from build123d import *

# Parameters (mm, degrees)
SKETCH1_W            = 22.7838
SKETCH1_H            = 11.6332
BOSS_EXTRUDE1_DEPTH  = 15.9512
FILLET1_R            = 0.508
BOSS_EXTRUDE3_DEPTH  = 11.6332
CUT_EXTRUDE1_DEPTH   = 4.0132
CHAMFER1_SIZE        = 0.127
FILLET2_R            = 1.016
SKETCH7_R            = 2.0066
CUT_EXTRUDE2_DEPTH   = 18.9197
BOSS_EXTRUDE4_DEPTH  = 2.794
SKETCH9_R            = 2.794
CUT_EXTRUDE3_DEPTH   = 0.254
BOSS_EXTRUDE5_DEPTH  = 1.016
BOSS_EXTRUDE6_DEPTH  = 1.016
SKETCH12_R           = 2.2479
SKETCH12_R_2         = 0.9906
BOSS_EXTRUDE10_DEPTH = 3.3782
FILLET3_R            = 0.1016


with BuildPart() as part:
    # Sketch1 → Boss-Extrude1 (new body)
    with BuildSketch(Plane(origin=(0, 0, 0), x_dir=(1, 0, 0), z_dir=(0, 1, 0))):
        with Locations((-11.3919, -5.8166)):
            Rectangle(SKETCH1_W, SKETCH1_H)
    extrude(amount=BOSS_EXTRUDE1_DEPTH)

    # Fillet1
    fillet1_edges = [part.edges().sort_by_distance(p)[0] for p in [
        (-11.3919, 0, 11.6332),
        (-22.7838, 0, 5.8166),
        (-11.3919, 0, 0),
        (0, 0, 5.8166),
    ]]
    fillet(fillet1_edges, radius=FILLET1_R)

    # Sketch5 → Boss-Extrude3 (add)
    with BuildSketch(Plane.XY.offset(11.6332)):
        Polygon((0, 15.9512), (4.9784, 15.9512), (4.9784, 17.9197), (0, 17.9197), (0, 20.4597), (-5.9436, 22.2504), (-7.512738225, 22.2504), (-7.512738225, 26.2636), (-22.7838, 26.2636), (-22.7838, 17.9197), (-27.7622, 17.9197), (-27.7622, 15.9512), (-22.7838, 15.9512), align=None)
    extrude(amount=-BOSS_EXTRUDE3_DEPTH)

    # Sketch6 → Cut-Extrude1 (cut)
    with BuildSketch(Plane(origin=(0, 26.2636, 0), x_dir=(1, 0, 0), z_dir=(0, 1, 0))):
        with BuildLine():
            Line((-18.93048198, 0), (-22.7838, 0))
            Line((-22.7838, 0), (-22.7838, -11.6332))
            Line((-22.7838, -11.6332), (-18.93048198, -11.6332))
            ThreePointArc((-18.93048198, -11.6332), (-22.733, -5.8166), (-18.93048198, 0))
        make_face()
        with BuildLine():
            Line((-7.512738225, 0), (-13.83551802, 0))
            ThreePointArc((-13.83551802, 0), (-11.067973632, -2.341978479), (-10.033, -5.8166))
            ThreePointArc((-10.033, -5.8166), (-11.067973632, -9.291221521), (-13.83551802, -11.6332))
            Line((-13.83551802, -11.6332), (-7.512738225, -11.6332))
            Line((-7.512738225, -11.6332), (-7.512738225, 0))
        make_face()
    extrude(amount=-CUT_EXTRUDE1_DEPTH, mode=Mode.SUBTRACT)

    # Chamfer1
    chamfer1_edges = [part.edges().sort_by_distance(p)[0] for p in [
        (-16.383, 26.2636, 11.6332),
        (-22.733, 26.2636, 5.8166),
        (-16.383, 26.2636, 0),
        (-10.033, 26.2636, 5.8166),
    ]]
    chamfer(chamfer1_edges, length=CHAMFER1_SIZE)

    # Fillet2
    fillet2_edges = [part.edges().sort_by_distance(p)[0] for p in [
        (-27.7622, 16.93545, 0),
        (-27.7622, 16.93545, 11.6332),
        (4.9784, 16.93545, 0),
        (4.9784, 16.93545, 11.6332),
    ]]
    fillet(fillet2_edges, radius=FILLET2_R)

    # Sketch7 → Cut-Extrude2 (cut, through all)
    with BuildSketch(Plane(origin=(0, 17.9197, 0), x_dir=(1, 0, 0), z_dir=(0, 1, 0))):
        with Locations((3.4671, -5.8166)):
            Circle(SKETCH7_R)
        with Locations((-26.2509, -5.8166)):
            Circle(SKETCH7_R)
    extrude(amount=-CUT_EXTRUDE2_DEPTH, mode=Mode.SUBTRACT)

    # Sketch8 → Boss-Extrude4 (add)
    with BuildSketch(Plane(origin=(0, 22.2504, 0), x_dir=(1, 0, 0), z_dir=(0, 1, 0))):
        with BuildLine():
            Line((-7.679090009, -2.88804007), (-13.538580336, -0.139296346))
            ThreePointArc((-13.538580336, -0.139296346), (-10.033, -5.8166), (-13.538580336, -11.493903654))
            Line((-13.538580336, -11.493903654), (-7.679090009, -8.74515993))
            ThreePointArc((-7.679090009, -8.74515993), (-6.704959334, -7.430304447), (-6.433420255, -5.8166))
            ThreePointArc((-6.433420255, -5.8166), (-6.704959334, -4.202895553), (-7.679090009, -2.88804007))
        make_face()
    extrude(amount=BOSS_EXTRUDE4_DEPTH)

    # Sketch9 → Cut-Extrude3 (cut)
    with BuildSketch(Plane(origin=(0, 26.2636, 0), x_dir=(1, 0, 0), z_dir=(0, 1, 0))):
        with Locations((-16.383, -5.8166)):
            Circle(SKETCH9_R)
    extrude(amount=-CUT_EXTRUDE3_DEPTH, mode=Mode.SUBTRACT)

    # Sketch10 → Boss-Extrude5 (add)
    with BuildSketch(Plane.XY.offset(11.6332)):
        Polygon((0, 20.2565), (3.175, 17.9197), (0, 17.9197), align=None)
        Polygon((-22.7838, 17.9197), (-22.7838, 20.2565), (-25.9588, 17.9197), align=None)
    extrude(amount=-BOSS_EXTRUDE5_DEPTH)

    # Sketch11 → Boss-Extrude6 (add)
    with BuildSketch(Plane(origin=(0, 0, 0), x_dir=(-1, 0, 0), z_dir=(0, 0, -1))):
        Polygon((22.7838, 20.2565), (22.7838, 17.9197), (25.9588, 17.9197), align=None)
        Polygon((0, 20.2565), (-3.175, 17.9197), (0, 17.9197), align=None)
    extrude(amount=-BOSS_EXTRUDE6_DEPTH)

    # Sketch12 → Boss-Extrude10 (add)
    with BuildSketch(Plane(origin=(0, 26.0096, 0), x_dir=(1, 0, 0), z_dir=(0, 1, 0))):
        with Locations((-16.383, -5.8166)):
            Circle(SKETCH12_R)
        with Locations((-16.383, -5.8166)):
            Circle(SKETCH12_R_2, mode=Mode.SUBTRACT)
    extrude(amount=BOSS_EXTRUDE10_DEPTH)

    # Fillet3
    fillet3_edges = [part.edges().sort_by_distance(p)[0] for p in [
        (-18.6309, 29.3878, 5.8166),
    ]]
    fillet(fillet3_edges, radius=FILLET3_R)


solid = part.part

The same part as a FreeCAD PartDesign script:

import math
import FreeCAD as App
import Part
import Sketcher
from FreeCAD import Vector
Q = App.Units.Quantity


def edges_at(feature, points):
    """Names of the edges that pass closest to the given points."""
    edges = feature.Shape.Edges
    near = lambda p: min(range(len(edges)), key=lambda i: edges[i].distToShape(Part.Vertex(*p))[0])
    return sorted({f"Edge{near(p) + 1}" for p in points})


def add_polygon(sketch, points):
    """Adds a closed chain of lines whose ends are joined by coincident constraints."""
    first, n = sketch.GeometryCount, len(points)
    for a, b in zip(points, points[1:] + points[:1]):
        sketch.addGeometry(Part.LineSegment(App.Vector(*a, 0), App.Vector(*b, 0)), False)
    for i in range(n):
        sketch.addConstraint(Sketcher.Constraint("Coincident", first + i, 2, first + (i + 1) % n, 1))

doc = App.newDocument("Part")
body = doc.addObject("PartDesign::Body", "Body")

sketch1 = doc.addObject("Sketcher::SketchObject", "Sketch")
body.addObject(sketch1)
sketch1.AttachmentSupport = (doc.XZ_Plane, [""])
sketch1.MapMode = "FlatFace"
add_polygon(sketch1, [(-22.7838, 0), (-22.7838, 11.6332), (0, 11.6332), (0, 0)])
sketch1.addConstraint([
    Sketcher.Constraint("Vertical", 0),
    Sketcher.Constraint("Horizontal", 1),
    Sketcher.Constraint("Vertical", 2),
    Sketcher.Constraint("Horizontal", 3),
    Sketcher.Constraint("Coincident", 2, 2, -1, 1),
    Sketcher.Constraint("DistanceX", 1, 1, 1, 2, Q("0.897 in")),
    Sketcher.Constraint("DistanceY", 0, 1, 0, 2, Q("0.458 in")),
])
pad1 = doc.addObject("PartDesign::Pad", "Pad")
body.addObject(pad1)
pad1.Profile = sketch1
pad1.Length = Q("0.628 in")
pad1.Reversed = True
doc.recompute()

fillet = doc.addObject("PartDesign::Fillet", "Fillet")
body.addObject(fillet)
fillet.Base = (pad1, edges_at(pad1, [
    (-11.392, 0, 11.633),
    (-22.784, 0, 5.817),
    (-11.392, 0, 0),
    (0, 0, 5.817),
]))
fillet.Radius = Q("0.02 in")

sketch2 = doc.addObject("Sketcher::SketchObject", "Sketch001")
body.addObject(sketch2)
sketch2.AttachmentSupport = (doc.XY_Plane, [""])
sketch2.MapMode = "FlatFace"
sketch2.AttachmentOffset = App.Placement(Vector(0, 0, 0.458 * 25.4), App.Rotation())
add_polygon(sketch2, [(4.9784, 15.9512), (4.9784, 17.9197), (0, 17.9197), (0, 20.4597), (-5.9436, 22.2504), (-7.512738, 22.2504), (-7.512738, 26.2636), (-22.7838, 26.2636), (-22.7838, 17.9197), (-27.7622, 17.9197), (-27.7622, 15.9512)])
sketch2.addConstraint([
    Sketcher.Constraint("Vertical", 0),
    Sketcher.Constraint("Horizontal", 1),
    Sketcher.Constraint("Vertical", 2),
    Sketcher.Constraint("Horizontal", 4),
    Sketcher.Constraint("Vertical", 5),
    Sketcher.Constraint("Horizontal", 6),
    Sketcher.Constraint("Vertical", 7),
    Sketcher.Constraint("Horizontal", 8),
    Sketcher.Constraint("Vertical", 9),
    Sketcher.Constraint("Horizontal", 10),
    Sketcher.Constraint("PointOnObject", 1, 2, -2),
    Sketcher.Constraint("Horizontal", 1, 2, 7, 2),
    Sketcher.Constraint("Equal", 1, 8),
    Sketcher.Constraint("DistanceY", 2, 1, 2, 2, Q("0.1 in")),
    Sketcher.Constraint("DistanceX", 1, 2, 1, 1, Q("0.196 in")),
    Sketcher.Constraint("DistanceX", 10, 1, 10, 2, Q("1.289 in")),
    Sketcher.Constraint("DistanceY", 5, 1, 5, 2, Q("0.158 in")),
    Sketcher.Constraint("DistanceX", 3, 2, 0, 2, Q("0.43 in")),
    Sketcher.Constraint("DistanceY", 0, 1, 0, 2, Q("0.0775 in")),
    Sketcher.Constraint("DistanceY", 7, 2, 7, 1, Q("0.3285 in")),
    Sketcher.Constraint("DistanceY", -1, 1, 3, 2, Q("0.876 in")),
    Sketcher.Constraint("DistanceX", 4, 2, 4, 1, 1.569138),
])
pad2 = doc.addObject("PartDesign::Pad", "Pad001")
body.addObject(pad2)
pad2.Profile = sketch2
pad2.Length = Q("0.458 in")
pad2.Reversed = True

sketch3 = doc.addObject("Sketcher::SketchObject", "Sketch002")
body.addObject(sketch3)
sketch3.AttachmentSupport = (doc.XZ_Plane, [""])
sketch3.MapMode = "FlatFace"
sketch3.AttachmentOffset = App.Placement(Vector(0, 0, -1.034 * 25.4), App.Rotation())
sketch3.addGeometry([
    Part.LineSegment(Vector(-18.930482, 0, 0), Vector(-22.7838, 0, 0)),
    Part.LineSegment(Vector(-22.7838, 0, 0), Vector(-22.7838, 11.6332, 0)),
    Part.LineSegment(Vector(-22.7838, 11.6332, 0), Vector(-18.930482, 11.6332, 0)),
    Part.ArcOfCircle(Part.Circle(Vector(-16.383, 5.8166, 0), Vector(0, 0, 1), 6.35), math.radians(113.651858), math.radians(246.348142)),
    Part.LineSegment(Vector(-7.512738, 0, 0), Vector(-13.835518, 0, 0)),
    Part.ArcOfCircle(Part.Circle(Vector(-16.383, 5.8166, 0), Vector(0, 0, 1), 6.35), math.radians(-66.348142), math.radians(0)),
    Part.ArcOfCircle(Part.Circle(Vector(-16.383, 5.8166, 0), Vector(0, 0, 1), 6.35), math.radians(0), math.radians(66.348142)),
    Part.LineSegment(Vector(-13.835518, 11.6332, 0), Vector(-7.512738, 11.6332, 0)),
    Part.LineSegment(Vector(-7.512738, 11.6332, 0), Vector(-7.512738, 0, 0)),
], False)
sketch3.addConstraint([
    Sketcher.Constraint("Coincident", 0, 2, 1, 1),
    Sketcher.Constraint("Coincident", 1, 2, 2, 1),
    Sketcher.Constraint("Coincident", 2, 2, 3, 1),
    Sketcher.Constraint("Coincident", 3, 2, 0, 1),
    Sketcher.Constraint("Coincident", 4, 2, 5, 1),
    Sketcher.Constraint("Tangent", 5, 2, 6, 1),
    Sketcher.Constraint("Coincident", 6, 2, 7, 1),
    Sketcher.Constraint("Coincident", 7, 2, 8, 1),
    Sketcher.Constraint("Coincident", 8, 2, 4, 1),
    Sketcher.Constraint("Horizontal", 0),
    Sketcher.Constraint("Vertical", 1),
    Sketcher.Constraint("Horizontal", 2),
    Sketcher.Constraint("Horizontal", 4),
    Sketcher.Constraint("Horizontal", 7),
    Sketcher.Constraint("Vertical", 8),
    Sketcher.Constraint("Coincident", 5, 3, 3, 3),
    Sketcher.Constraint("Equal", 3, 5),
    Sketcher.Constraint("Equal", 5, 6),
    Sketcher.Constraint("PointOnObject", 0, 2, -1),
    Sketcher.Constraint("PointOnObject", 4, 2, -1),
    Sketcher.Constraint("Horizontal", 6, 3, 5, 2),
    Sketcher.Constraint("Horizontal", 2, 2, 6, 2),
    Sketcher.Constraint("Vertical", 2, 2, 3, 2),
    Sketcher.Constraint("Radius", 3, Q("0.25 in")),
    Sketcher.Constraint("DistanceY", 1, 1, 1, 2, Q("0.458 in")),
    Sketcher.Constraint("DistanceX", 3, 3, -1, 1, Q("0.645 in")),
    Sketcher.Constraint("DistanceX", 0, 2, -1, 1, Q("0.897 in")),
    Sketcher.Constraint("DistanceX", 4, 2, 4, 1, 6.32278),
])
pocket1 = doc.addObject("PartDesign::Pocket", "Pocket")
body.addObject(pocket1)
pocket1.Profile = sketch3
pocket1.Length = Q("0.158 in")
pocket1.Reversed = True
doc.recompute()

chamfer = doc.addObject("PartDesign::Chamfer", "Chamfer")
body.addObject(chamfer)
chamfer.Base = (pocket1, edges_at(pocket1, [
    (-16.383, 26.264, 11.633),
    (-22.733, 26.264, 5.817),
    (-16.383, 26.264, 0),
    (-11.068, 26.264, 2.342),
]))
chamfer.Size = Q("0.005 in")
doc.recompute()

fillet2 = doc.addObject("PartDesign::Fillet", "Fillet001")
body.addObject(fillet2)
fillet2.Base = (chamfer, edges_at(chamfer, [
    (-27.762, 16.935, 0),
    (-27.762, 16.935, 11.633),
    (4.978, 16.935, 0),
    (4.978, 16.935, 11.633),
]))
fillet2.Radius = Q("0.04 in")

sketch4 = doc.addObject("Sketcher::SketchObject", "Sketch003")
body.addObject(sketch4)
sketch4.AttachmentSupport = (doc.XZ_Plane, [""])
sketch4.MapMode = "FlatFace"
sketch4.AttachmentOffset = App.Placement(Vector(0, 0, -0.7055 * 25.4), App.Rotation())
sketch4.addGeometry([
    Part.Circle(Vector(3.4671, 5.8166, 0), Vector(0, 0, 1), 2.0066),
    Part.Circle(Vector(-26.2509, 5.8166, 0), Vector(0, 0, 1), 2.0066),
], False)
sketch4.addConstraint([
    Sketcher.Constraint("Equal", 0, 1),
    Sketcher.Constraint("Horizontal", 0, 3, 1, 3),
    Sketcher.Constraint("Diameter", 0, Q("0.158 in")),
    Sketcher.Constraint("DistanceX", 1, 3, 0, 3, Q("1.17 in")),
    Sketcher.Constraint("DistanceY", -1, 1, 0, 3, Q("0.229 in")),
    Sketcher.Constraint("DistanceX", -1, 1, 0, 3, Q("0.1365 in")),
])
pocket2 = doc.addObject("PartDesign::Pocket", "Pocket001")
body.addObject(pocket2)
pocket2.Profile = sketch4
pocket2.Type = "ThroughAll"
pocket2.Reversed = True

sketch5 = doc.addObject("Sketcher::SketchObject", "Sketch004")
body.addObject(sketch5)
sketch5.AttachmentSupport = (doc.XZ_Plane, [""])
sketch5.MapMode = "FlatFace"
sketch5.AttachmentOffset = App.Placement(Vector(0, 0, -0.876 * 25.4), App.Rotation())
sketch5.addGeometry([
    Part.LineSegment(Vector(-7.67909, 2.88804, 0), Vector(-13.53858, 0.139296, 0)),
    Part.ArcOfCircle(Part.Circle(Vector(-16.383, 5.8166, 0), Vector(0, 0, 1), 6.35), math.radians(-63.3884), math.radians(63.3884)),
    Part.LineSegment(Vector(-13.53858, 11.493904, 0), Vector(-7.67909, 8.74516, 0)),
    Part.ArcOfCircle(Part.Circle(Vector(-9.932331, 6.057534, 0), Vector(0, 0, 1), 3.507197), math.radians(-3.939156), math.radians(50.024332)),
    Part.ArcOfCircle(Part.Circle(Vector(-9.932331, 5.575666, 0), Vector(0, 0, 1), 3.507197), math.radians(-50.024332), math.radians(3.939156)),
], False)
sketch5.addConstraint([
    Sketcher.Constraint("Coincident", 0, 2, 1, 1),
    Sketcher.Constraint("Coincident", 1, 2, 2, 1),
    Sketcher.Constraint("Coincident", 2, 2, 3, 2),
    Sketcher.Constraint("Coincident", 3, 1, 4, 2),
    Sketcher.Constraint("Coincident", 4, 1, 0, 1),
    Sketcher.Constraint("Equal", 3, 4),
    Sketcher.Constraint("Horizontal", 1, 3, 3, 1),
    Sketcher.Constraint("Vertical", 3, 3, 4, 3),
    Sketcher.Constraint("Vertical", 0, 2, 1, 2),
    Sketcher.Constraint("Vertical", 2, 2, 4, 1),
    Sketcher.Constraint("Radius", 1, Q("0.25 in")),
    Sketcher.Constraint("DistanceX", 1, 3, -1, 1, Q("0.645 in")),
    Sketcher.Constraint("DistanceY", -1, 1, 1, 3, Q("0.229 in")),
    Sketcher.Constraint("Radius", 3, 3.507197),
    Sketcher.Constraint("Distance", 0, 6.472188),
    Sketcher.Constraint("DistanceX", 3, 3, -1, 1, 9.932331),
    Sketcher.Constraint("DistanceX", 0, 2, -1, 1, 13.53858),
    Sketcher.Constraint("DistanceX", 2, 2, -1, 1, 7.67909),
])
pad3 = doc.addObject("PartDesign::Pad", "Pad002")
body.addObject(pad3)
pad3.Profile = sketch5
pad3.Length = Q("0.11 in")
pad3.Reversed = True

sketch6 = doc.addObject("Sketcher::SketchObject", "Sketch005")
body.addObject(sketch6)
sketch6.AttachmentSupport = (doc.XZ_Plane, [""])
sketch6.MapMode = "FlatFace"
sketch6.AttachmentOffset = App.Placement(Vector(0, 0, -1.034 * 25.4), App.Rotation())
sketch6.addGeometry(Part.Circle(Vector(-16.383, 5.8166, 0), Vector(0, 0, 1), 2.794), False)
sketch6.addConstraint([
    Sketcher.Constraint("Diameter", 0, Q("0.22 in")),
    Sketcher.Constraint("DistanceX", 0, 3, -1, 1, Q("0.645 in")),
    Sketcher.Constraint("DistanceY", -1, 1, 0, 3, Q("0.229 in")),
])
pocket3 = doc.addObject("PartDesign::Pocket", "Pocket002")
body.addObject(pocket3)
pocket3.Profile = sketch6
pocket3.Length = Q("0.01 in")
pocket3.Reversed = True

sketch7 = doc.addObject("Sketcher::SketchObject", "Sketch006")
body.addObject(sketch7)
sketch7.AttachmentSupport = (doc.XY_Plane, [""])
sketch7.MapMode = "FlatFace"
sketch7.AttachmentOffset = App.Placement(Vector(0, 0, 0.458 * 25.4), App.Rotation())
add_polygon(sketch7, [(3.175, 17.9197), (0, 20.2565), (0, 17.9197)])
add_polygon(sketch7, [(-22.7838, 17.9197), (-22.7838, 20.2565), (-25.9588, 17.9197)])
sketch7.addConstraint([
    Sketcher.Constraint("Vertical", 1),
    Sketcher.Constraint("Horizontal", 2),
    Sketcher.Constraint("Vertical", 3),
    Sketcher.Constraint("Horizontal", 5),
    Sketcher.Constraint("PointOnObject", 0, 2, -2),
    Sketcher.Constraint("Horizontal", 0, 2, 3, 2),
    Sketcher.Constraint("Horizontal", 2, 2, 4, 2),
    Sketcher.Constraint("Equal", 2, 5),
    Sketcher.Constraint("DistanceX", 2, 1, 2, 2, Q("0.125 in")),
    Sketcher.Constraint("DistanceY", 1, 2, 1, 1, Q("0.092 in")),
    Sketcher.Constraint("DistanceX", 3, 2, -1, 1, Q("0.897 in")),
    Sketcher.Constraint("DistanceY", -1, 1, 0, 2, Q("0.7975 in")),
])
pad4 = doc.addObject("PartDesign::Pad", "Pad003")
body.addObject(pad4)
pad4.Profile = sketch7
pad4.Length = Q("0.04 in")
pad4.Reversed = True

sketch8 = doc.addObject("Sketcher::SketchObject", "Sketch007")
body.addObject(sketch8)
sketch8.AttachmentSupport = (doc.XY_Plane, [""])
sketch8.MapMode = "FlatFace"
add_polygon(sketch8, [(-22.7838, 20.2565), (-22.7838, 17.9197), (-25.9588, 17.9197)])
add_polygon(sketch8, [(0, 20.2565), (3.175, 17.9197), (0, 17.9197)])
sketch8.addConstraint([
    Sketcher.Constraint("Vertical", 0),
    Sketcher.Constraint("Horizontal", 1),
    Sketcher.Constraint("Horizontal", 4),
    Sketcher.Constraint("Vertical", 5),
    Sketcher.Constraint("PointOnObject", 4, 2, -2),
    Sketcher.Constraint("Horizontal", 1, 2, 3, 2),
    Sketcher.Constraint("Horizontal", 2, 2, 5, 2),
    Sketcher.Constraint("Equal", 1, 4),
    Sketcher.Constraint("DistanceX", 1, 2, 1, 1, Q("0.125 in")),
    Sketcher.Constraint("DistanceY", 0, 2, 0, 1, Q("0.092 in")),
    Sketcher.Constraint("DistanceX", 0, 2, -1, 1, Q("0.897 in")),
    Sketcher.Constraint("DistanceY", -1, 1, 0, 2, Q("0.7055 in")),
])
pad5 = doc.addObject("PartDesign::Pad", "Pad004")
body.addObject(pad5)
pad5.Profile = sketch8
pad5.Length = Q("0.04 in")

sketch9 = doc.addObject("Sketcher::SketchObject", "Sketch008")
body.addObject(sketch9)
sketch9.AttachmentSupport = (doc.XZ_Plane, [""])
sketch9.MapMode = "FlatFace"
sketch9.AttachmentOffset = App.Placement(Vector(0, 0, -1.024 * 25.4), App.Rotation())
sketch9.addGeometry([
    Part.Circle(Vector(-16.383, 5.8166, 0), Vector(0, 0, 1), 2.2479),
    Part.Circle(Vector(-16.383, 5.8166, 0), Vector(0, 0, 1), 0.9906),
], False)
sketch9.addConstraint([
    Sketcher.Constraint("Coincident", 1, 3, 0, 3),
    Sketcher.Constraint("Diameter", 0, Q("0.177 in")),
    Sketcher.Constraint("Diameter", 1, Q("0.078 in")),
    Sketcher.Constraint("DistanceX", 0, 3, -1, 1, Q("0.645 in")),
    Sketcher.Constraint("DistanceY", -1, 1, 0, 3, Q("0.229 in")),
])
pad6 = doc.addObject("PartDesign::Pad", "Pad005")
body.addObject(pad6)
pad6.Profile = sketch9
pad6.Length = Q("0.133 in")
pad6.Reversed = True
doc.recompute()

fillet3 = doc.addObject("PartDesign::Fillet", "Fillet002")
body.addObject(fillet3)
fillet3.Base = (pad6, edges_at(pad6, [(-18.631, 29.388, 5.817)]))
fillet3.Radius = Q("0.004 in")

doc.recompute()
